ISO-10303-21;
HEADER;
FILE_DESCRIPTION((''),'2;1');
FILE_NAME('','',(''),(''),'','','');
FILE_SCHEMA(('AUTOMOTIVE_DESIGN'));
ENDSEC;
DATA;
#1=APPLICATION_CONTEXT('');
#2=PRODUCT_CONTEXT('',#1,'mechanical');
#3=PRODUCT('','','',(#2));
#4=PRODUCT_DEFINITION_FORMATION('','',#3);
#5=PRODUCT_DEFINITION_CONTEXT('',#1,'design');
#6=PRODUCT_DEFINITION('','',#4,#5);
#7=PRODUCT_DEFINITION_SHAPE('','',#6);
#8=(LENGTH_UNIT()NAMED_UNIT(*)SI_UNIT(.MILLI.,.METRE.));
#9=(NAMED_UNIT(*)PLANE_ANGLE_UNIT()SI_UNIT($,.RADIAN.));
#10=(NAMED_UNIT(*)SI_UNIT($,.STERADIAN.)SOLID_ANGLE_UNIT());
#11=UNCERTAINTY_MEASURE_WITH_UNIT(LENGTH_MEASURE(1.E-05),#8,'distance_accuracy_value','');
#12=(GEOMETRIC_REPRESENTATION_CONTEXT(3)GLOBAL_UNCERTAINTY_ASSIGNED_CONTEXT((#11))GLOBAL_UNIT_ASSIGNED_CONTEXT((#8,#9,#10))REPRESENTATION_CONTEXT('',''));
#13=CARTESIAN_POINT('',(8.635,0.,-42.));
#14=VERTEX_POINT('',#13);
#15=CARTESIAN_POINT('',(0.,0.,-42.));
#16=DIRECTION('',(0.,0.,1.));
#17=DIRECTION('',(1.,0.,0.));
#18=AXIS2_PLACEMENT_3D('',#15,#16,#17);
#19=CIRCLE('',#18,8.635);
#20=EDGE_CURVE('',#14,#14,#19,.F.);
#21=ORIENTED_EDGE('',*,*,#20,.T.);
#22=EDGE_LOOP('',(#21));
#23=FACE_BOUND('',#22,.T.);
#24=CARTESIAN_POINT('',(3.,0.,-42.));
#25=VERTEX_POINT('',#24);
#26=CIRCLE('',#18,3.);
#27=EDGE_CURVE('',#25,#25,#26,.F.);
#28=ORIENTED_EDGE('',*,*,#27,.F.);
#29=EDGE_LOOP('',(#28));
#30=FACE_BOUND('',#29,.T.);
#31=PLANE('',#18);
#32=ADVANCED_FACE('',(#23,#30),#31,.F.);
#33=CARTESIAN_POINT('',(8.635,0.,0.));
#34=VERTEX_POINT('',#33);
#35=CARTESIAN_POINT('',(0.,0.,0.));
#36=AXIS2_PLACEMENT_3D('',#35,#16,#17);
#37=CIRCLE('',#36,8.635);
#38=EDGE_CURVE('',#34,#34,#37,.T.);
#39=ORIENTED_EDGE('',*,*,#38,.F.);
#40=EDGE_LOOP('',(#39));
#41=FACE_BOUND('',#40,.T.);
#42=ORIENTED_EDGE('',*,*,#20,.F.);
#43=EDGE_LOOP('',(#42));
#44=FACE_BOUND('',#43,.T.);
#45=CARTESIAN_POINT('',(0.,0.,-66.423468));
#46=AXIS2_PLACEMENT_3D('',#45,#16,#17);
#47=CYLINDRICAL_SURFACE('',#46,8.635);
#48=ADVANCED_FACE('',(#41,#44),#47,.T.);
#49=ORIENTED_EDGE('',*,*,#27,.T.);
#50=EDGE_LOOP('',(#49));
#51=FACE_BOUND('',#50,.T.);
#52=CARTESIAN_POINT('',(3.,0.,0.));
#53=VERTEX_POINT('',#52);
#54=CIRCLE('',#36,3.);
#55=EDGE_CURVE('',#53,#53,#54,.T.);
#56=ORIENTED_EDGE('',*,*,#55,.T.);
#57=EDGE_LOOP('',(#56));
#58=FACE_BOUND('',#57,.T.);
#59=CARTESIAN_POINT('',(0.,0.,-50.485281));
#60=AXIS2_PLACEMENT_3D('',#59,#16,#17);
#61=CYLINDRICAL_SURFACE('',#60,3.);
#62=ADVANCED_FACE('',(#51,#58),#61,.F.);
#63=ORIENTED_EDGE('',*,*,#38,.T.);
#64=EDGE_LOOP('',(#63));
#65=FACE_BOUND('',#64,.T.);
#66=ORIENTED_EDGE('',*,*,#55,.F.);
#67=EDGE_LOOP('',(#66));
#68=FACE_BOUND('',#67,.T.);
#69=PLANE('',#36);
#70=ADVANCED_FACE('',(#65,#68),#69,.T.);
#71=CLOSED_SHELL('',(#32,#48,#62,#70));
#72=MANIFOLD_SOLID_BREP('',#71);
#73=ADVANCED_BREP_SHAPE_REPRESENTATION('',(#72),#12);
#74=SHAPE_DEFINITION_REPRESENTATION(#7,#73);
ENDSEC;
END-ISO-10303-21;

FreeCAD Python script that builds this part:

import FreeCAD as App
import Part
import Sketcher

V = App.Vector
Q = App.Units.Quantity

doc = App.newDocument("Part")
body = doc.addObject("PartDesign::Body", "Body")

sketch1 = doc.addObject("Sketcher::SketchObject", "Sketch")
body.addObject(sketch1)
sketch1.AttachmentSupport = (doc.XY_Plane, [""])
sketch1.MapMode = "FlatFace"
sketch1.addGeometry(Part.Circle(V(0, 0, 0), V(0, 0, 1), 9), False)
sketch1.addConstraint([
    Sketcher.Constraint("Coincident", 0, 3, -1, 1),
    Sketcher.Constraint("Diameter", 0, Q("17.27 mm")),
])
pad1 = doc.addObject("PartDesign::Pad", "Pad")
body.addObject(pad1)
pad1.Profile = sketch1
pad1.Length = 42
pad1.Reversed = True

sketch2 = doc.addObject("Sketcher::SketchObject", "Sketch001")
body.addObject(sketch2)
sketch2.AttachmentSupport = (doc.XY_Plane, [""])
sketch2.MapMode = "FlatFace"
sketch2.addGeometry(Part.Circle(V(0, 0, 0), V(0, 0, 1), 3), False)
sketch2.addConstraint([
    Sketcher.Constraint("Coincident", 0, 3, -1, 1),
    Sketcher.Constraint("Diameter", 0, Q("6 mm")),
])
pocket1 = doc.addObject("PartDesign::Pocket", "Pocket")
body.addObject(pocket1)
pocket1.Profile = sketch2
pocket1.Type = "UpToFirst"

doc.recompute()
